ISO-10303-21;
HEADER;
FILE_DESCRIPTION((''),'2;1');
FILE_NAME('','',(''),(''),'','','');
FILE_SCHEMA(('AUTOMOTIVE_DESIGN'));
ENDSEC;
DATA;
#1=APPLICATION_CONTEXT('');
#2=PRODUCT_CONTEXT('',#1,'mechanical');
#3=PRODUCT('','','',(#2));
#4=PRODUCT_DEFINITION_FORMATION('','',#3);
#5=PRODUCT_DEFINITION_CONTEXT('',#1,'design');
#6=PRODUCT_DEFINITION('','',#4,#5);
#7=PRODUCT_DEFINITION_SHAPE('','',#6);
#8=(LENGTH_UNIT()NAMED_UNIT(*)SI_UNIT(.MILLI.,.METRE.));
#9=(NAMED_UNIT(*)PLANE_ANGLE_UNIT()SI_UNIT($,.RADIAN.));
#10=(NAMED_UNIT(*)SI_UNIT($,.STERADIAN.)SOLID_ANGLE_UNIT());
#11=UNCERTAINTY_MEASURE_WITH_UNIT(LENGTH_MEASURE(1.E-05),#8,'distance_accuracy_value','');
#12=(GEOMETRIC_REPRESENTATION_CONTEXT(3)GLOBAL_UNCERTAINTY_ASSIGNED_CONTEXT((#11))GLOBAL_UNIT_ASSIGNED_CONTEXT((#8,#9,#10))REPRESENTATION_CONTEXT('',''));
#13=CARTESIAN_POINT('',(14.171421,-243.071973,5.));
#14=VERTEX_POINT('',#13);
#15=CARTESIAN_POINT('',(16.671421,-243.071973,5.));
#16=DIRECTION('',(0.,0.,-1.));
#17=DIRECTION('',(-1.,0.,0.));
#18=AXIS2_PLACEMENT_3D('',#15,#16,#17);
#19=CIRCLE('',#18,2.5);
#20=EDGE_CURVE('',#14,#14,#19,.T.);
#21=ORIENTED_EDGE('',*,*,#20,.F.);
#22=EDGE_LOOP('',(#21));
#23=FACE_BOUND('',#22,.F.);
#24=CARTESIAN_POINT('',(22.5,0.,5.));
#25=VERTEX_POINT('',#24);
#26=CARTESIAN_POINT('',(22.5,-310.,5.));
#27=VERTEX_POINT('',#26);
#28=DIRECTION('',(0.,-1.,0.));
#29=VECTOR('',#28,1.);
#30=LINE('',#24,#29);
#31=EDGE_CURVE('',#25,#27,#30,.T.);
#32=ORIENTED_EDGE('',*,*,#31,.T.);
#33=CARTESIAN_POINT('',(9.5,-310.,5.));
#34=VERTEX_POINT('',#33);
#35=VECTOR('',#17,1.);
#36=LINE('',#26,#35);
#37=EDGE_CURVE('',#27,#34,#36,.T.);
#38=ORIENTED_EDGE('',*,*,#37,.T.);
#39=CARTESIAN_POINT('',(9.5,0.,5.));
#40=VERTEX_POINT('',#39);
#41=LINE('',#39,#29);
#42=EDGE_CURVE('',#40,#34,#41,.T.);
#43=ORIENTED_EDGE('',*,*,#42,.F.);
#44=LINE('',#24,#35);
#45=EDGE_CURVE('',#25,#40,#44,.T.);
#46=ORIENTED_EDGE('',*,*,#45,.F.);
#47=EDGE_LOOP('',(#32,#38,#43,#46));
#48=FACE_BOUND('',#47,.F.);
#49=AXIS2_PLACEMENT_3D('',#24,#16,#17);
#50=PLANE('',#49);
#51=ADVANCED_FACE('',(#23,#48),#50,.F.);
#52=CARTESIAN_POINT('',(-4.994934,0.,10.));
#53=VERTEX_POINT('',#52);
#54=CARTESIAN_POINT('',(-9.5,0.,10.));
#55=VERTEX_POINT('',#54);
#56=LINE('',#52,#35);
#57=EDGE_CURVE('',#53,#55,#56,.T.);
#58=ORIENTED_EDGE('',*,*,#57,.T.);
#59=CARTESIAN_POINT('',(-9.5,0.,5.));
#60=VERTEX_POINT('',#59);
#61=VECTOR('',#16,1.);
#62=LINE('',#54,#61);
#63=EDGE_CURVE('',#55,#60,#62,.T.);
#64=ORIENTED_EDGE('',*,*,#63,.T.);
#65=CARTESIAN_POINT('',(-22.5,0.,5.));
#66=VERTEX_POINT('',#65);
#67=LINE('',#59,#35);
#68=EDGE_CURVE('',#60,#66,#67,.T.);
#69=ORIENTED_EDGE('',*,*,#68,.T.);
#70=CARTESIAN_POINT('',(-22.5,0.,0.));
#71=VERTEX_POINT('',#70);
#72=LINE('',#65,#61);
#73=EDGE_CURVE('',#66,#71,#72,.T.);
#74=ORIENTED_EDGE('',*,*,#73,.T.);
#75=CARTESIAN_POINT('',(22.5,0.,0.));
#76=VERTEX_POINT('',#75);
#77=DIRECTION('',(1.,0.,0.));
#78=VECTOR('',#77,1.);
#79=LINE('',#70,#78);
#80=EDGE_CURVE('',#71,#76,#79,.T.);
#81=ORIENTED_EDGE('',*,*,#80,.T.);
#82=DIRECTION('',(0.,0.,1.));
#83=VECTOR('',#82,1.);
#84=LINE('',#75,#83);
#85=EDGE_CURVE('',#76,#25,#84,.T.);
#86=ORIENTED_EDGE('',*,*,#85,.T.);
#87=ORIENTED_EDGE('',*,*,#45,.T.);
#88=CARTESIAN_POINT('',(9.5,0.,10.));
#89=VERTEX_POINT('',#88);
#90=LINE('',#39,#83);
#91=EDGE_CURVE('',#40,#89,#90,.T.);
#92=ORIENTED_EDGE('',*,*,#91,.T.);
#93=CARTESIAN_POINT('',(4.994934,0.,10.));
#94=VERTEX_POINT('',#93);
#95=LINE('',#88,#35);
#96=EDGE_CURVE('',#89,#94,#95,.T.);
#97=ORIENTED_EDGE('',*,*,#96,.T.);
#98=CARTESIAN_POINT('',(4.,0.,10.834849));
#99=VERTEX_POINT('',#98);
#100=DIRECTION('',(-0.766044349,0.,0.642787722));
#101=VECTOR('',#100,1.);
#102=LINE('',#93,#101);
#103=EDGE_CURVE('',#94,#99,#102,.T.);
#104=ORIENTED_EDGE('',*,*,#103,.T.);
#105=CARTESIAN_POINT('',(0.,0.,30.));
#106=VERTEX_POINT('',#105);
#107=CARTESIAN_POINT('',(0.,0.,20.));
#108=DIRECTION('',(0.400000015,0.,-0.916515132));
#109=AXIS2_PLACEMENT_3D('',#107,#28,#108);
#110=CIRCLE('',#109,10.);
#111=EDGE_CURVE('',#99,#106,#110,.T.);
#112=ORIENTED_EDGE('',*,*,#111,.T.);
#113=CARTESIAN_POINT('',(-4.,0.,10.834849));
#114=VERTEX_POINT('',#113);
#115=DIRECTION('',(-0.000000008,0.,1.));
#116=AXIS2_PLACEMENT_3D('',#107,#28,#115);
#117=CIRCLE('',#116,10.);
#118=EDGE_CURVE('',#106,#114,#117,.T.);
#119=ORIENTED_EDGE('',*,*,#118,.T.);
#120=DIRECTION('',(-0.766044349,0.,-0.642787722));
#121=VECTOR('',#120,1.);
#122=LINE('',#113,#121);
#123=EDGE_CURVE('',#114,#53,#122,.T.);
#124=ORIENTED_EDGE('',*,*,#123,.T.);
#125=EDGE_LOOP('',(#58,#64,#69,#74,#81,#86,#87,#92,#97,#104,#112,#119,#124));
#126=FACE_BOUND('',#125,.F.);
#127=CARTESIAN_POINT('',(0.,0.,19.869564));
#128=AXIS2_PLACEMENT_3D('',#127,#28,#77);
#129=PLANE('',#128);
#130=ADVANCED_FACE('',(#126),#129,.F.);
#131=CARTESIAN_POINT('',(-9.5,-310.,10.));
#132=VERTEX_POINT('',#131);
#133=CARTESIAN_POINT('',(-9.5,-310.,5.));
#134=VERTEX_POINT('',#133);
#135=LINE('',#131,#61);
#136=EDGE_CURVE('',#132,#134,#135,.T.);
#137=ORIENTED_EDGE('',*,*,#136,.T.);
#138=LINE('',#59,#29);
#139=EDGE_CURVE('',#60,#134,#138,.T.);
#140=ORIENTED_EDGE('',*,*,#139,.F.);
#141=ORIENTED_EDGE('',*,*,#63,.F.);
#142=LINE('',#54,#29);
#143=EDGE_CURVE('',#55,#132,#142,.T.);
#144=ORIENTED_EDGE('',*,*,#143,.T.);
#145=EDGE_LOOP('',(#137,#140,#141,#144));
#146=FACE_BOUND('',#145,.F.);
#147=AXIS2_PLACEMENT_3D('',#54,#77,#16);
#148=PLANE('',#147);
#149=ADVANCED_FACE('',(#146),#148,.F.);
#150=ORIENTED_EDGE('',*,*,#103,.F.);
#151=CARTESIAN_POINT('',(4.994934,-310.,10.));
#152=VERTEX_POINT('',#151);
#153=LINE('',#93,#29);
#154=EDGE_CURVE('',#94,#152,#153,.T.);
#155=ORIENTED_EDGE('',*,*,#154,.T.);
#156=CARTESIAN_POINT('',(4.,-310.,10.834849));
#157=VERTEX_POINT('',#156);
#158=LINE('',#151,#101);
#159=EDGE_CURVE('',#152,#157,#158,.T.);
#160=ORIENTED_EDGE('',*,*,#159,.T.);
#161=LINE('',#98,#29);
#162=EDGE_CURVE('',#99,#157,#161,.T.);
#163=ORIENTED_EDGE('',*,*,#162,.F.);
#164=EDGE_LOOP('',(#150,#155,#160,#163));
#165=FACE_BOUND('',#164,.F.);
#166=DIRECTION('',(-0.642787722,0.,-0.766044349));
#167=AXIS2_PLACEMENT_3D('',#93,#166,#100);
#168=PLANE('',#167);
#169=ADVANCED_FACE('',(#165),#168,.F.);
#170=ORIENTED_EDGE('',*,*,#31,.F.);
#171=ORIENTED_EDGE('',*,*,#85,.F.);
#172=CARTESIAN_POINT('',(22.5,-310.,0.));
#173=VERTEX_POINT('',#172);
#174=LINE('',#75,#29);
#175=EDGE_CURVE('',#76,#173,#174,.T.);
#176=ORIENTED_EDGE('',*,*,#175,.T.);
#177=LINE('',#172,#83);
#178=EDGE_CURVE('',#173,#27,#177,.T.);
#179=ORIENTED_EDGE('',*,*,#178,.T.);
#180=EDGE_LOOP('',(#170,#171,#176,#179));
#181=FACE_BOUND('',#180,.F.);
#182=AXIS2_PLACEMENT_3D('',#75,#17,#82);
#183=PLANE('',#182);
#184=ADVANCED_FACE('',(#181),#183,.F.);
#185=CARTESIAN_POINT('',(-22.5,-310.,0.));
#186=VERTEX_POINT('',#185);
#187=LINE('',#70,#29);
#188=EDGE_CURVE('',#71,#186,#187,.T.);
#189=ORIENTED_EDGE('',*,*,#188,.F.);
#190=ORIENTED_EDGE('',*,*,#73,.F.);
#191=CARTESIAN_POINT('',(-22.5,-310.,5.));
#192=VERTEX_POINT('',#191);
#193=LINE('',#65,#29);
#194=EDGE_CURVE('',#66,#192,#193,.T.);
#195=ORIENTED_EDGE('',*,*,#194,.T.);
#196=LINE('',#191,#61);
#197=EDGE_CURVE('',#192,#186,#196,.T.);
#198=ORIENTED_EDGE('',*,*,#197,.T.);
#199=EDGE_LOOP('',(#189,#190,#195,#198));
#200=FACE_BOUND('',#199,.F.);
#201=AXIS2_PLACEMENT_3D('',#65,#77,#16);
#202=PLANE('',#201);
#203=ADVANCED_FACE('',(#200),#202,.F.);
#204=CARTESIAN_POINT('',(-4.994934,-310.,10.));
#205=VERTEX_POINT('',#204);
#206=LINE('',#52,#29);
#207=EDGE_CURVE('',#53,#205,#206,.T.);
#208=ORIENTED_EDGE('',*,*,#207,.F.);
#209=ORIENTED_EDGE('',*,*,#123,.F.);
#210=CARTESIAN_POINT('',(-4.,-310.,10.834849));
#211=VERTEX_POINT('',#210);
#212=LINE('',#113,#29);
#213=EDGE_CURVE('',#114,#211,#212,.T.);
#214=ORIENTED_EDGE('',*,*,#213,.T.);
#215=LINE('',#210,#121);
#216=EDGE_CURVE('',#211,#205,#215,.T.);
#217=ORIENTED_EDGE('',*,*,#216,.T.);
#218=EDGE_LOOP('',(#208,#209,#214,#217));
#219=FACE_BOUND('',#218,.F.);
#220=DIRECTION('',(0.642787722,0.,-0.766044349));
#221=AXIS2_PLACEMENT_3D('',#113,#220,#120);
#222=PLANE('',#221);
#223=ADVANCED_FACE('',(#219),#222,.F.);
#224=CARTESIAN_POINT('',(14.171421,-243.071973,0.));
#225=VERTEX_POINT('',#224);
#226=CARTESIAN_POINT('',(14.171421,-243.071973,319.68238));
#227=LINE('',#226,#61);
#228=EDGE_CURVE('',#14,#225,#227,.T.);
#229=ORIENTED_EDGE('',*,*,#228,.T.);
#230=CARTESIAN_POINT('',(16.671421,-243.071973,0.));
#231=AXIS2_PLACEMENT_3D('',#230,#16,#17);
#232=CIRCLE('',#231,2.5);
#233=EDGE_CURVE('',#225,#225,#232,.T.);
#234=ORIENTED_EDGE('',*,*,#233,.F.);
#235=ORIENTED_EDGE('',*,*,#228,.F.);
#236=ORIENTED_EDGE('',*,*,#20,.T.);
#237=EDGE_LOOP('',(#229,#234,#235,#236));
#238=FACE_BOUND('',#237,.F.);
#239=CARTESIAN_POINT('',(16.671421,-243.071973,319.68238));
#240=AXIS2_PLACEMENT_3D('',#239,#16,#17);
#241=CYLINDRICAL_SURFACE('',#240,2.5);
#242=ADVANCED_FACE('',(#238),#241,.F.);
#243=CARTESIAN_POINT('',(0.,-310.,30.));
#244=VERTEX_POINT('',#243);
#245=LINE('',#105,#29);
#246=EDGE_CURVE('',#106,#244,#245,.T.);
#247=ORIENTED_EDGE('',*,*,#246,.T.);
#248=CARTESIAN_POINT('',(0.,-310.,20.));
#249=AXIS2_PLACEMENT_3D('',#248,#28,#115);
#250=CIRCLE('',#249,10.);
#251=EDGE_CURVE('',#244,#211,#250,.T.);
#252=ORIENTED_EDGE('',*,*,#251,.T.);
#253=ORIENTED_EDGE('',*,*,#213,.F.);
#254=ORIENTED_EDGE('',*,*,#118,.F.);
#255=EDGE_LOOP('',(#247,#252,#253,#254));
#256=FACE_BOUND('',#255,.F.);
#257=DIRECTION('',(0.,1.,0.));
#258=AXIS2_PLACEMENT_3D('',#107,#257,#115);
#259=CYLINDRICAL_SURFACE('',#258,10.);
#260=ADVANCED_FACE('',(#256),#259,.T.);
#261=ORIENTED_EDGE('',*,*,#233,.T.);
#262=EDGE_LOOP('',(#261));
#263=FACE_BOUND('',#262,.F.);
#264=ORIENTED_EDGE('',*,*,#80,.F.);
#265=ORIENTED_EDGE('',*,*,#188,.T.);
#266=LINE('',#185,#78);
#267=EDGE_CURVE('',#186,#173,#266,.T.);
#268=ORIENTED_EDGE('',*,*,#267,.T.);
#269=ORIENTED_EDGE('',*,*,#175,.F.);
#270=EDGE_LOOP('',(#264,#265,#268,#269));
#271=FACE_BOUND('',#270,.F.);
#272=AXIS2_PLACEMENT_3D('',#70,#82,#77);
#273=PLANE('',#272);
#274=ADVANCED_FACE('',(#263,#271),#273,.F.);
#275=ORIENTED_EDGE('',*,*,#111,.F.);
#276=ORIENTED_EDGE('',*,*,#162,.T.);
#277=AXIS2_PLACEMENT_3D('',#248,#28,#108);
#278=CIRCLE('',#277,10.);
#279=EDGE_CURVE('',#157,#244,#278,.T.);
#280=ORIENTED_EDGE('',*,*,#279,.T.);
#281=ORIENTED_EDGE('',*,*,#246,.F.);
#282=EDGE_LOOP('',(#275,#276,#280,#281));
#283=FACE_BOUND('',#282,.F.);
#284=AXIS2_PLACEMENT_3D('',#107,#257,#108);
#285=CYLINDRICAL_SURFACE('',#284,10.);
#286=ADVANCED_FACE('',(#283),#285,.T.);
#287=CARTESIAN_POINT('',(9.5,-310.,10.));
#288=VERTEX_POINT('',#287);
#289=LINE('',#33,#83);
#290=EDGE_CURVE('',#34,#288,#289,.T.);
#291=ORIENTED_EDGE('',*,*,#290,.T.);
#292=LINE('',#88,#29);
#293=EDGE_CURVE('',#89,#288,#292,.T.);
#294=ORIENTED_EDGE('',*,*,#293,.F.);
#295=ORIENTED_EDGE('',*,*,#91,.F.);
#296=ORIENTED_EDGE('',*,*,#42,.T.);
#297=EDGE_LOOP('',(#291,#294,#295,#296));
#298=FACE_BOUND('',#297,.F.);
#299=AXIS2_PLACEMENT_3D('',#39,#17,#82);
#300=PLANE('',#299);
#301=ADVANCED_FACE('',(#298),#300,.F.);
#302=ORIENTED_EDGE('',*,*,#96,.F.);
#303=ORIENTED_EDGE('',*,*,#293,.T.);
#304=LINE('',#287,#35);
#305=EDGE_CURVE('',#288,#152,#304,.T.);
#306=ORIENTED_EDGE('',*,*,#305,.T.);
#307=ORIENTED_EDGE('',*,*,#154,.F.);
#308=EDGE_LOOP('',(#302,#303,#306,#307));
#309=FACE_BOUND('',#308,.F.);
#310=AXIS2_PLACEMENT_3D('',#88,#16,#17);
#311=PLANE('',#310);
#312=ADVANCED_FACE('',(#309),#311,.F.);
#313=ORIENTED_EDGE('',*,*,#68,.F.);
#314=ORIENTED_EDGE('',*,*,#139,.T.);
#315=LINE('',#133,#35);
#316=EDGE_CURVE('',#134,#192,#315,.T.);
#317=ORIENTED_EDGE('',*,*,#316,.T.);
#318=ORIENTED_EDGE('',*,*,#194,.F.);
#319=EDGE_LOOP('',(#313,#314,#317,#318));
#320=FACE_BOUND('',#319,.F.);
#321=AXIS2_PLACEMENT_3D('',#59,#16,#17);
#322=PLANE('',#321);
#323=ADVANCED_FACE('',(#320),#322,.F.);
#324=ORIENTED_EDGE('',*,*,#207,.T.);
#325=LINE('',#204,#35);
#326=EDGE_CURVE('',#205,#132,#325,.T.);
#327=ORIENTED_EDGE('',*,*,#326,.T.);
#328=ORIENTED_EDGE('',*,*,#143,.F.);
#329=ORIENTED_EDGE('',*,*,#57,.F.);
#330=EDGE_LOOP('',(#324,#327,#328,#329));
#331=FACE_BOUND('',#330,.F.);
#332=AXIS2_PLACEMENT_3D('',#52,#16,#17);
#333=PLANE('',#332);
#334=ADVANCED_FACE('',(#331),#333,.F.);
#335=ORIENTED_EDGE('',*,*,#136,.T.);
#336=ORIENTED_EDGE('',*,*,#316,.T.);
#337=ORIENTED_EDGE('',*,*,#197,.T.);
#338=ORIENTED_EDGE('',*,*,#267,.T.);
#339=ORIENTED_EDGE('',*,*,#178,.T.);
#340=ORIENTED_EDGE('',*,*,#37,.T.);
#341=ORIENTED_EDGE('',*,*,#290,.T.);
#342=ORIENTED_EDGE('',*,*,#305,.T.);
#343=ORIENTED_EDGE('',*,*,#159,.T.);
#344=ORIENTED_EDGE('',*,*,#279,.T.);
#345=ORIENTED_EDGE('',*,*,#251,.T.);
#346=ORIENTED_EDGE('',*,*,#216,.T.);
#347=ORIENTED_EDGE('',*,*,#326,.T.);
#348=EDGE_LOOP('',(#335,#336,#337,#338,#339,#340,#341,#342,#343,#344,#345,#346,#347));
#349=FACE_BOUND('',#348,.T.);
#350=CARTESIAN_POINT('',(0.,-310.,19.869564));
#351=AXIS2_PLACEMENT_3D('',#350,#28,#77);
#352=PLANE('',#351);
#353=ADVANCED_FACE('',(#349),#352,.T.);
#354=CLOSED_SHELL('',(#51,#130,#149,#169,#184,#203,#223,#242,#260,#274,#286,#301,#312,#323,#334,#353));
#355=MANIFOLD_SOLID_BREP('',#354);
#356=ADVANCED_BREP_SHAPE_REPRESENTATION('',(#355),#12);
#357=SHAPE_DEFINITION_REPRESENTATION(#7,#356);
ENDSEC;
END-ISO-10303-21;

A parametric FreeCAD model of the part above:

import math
import FreeCAD as App
import Part
import Sketcher

V = App.Vector
Q = App.Units.Quantity

doc = App.newDocument("Part")
body = doc.addObject("PartDesign::Body", "Body")

# Sketch on XZ plane
sketch1 = body.newObject("Sketcher::SketchObject", "Sketch")
sketch1.AttachmentSupport = (doc.getObject("XZ_Plane"), [""])
sketch1.MapMode = "FlatFace"
sketch1.addGeometry([
    Part.ArcOfCircle(Part.Circle(V(0, 20, 0), V(0, 0, 1), 10), math.radians(-66), math.radians(90)),  # 0
    Part.ArcOfCircle(Part.Circle(V(0, 20, 0), V(0, 0, 1), 10), math.radians(90), math.radians(246)),  # 1
    Part.LineSegment(V(-4, 10.8, 0), V(-5, 10, 0)),  # 2
    Part.LineSegment(V(-5, 10, 0), V(-9.5, 10, 0)),  # 3
    Part.LineSegment(V(-9.5, 10, 0), V(-9.5, 5, 0)),  # 4
    Part.LineSegment(V(-9.5, 5, 0), V(-22.5, 5, 0)),  # 5
    Part.LineSegment(V(-22.5, 5, 0), V(-22.5, 0, 0)),  # 6
    Part.LineSegment(V(-22.5, 0, 0), V(22.5, 0, 0)),  # 7
    Part.LineSegment(V(22.5, 0, 0), V(22.5, 5, 0)),  # 8
    Part.LineSegment(V(22.5, 5, 0), V(9.5, 5, 0)),  # 9
    Part.LineSegment(V(9.5, 5, 0), V(9.5, 10, 0)),  # 10
    Part.LineSegment(V(9.5, 10, 0), V(5, 10, 0)),  # 11
    Part.LineSegment(V(5, 10, 0), V(4, 10.8, 0)),  # 12
], False)
sketch1.addConstraint([
    Sketcher.Constraint("Tangent", 0, 2, 1, 1),
    Sketcher.Constraint("Coincident", 1, 2, 2, 1),
    Sketcher.Constraint("Coincident", 2, 2, 3, 1),
    Sketcher.Constraint("Coincident", 3, 2, 4, 1),
    Sketcher.Constraint("Coincident", 4, 2, 5, 1),
    Sketcher.Constraint("Coincident", 5, 2, 6, 1),
    Sketcher.Constraint("Coincident", 6, 2, 7, 1),
    Sketcher.Constraint("Coincident", 7, 2, 8, 1),
    Sketcher.Constraint("Coincident", 8, 2, 9, 1),
    Sketcher.Constraint("Coincident", 9, 2, 10, 1),
    Sketcher.Constraint("Coincident", 10, 2, 11, 1),
    Sketcher.Constraint("Coincident", 11, 2, 12, 1),
    Sketcher.Constraint("Coincident", 12, 2, 0, 1),
    Sketcher.Constraint("Horizontal", 3),
    Sketcher.Constraint("Vertical", 4),
    Sketcher.Constraint("Horizontal", 5),
    Sketcher.Constraint("Vertical", 6),
    Sketcher.Constraint("Horizontal", 7),
    Sketcher.Constraint("Vertical", 8),
    Sketcher.Constraint("Horizontal", 9),
    Sketcher.Constraint("Vertical", 10),
    Sketcher.Constraint("Horizontal", 11),
    Sketcher.Constraint("Equal", 0, 1),
    Sketcher.Constraint("Symmetric", 6, 2, 7, 2, -1, 1),
    Sketcher.Constraint("Symmetric", 4, 2, 9, 2, -2),
    Sketcher.Constraint("Symmetric", 2, 2, 11, 2, -2),
    Sketcher.Constraint("Symmetric", 1, 2, 12, 2, -2),
    Sketcher.Constraint("PointOnObject", 0, 2, -2),
    Sketcher.Constraint("Equal", 4, 6),
    Sketcher.Constraint("Radius", 0, 10.0),
    Sketcher.Constraint("DistanceX", 5, 2, 5, 1, 13.0),
    Sketcher.Constraint("DistanceX", 7, 1, 7, 2, 45.0),
    Sketcher.Constraint("DistanceY", 4, 2, 4, 1, 5.0),
    Sketcher.Constraint("Angle", 2, Q("-139.999992 deg")),
    Sketcher.Constraint("DistanceY", -1, 1, 0, 3, 20.0),
    Sketcher.Constraint("DistanceX", 1, 2, -1, 1, 4.0),
])
pad1 = body.newObject("PartDesign::Pad", "Pad")
pad1.Profile = sketch1
pad1.Length = 310

# Sketch on XY plane
sketch2 = body.newObject("Sketcher::SketchObject", "Sketch001")
sketch2.AttachmentSupport = (doc.getObject("XY_Plane"), [""])
sketch2.MapMode = "FlatFace"
sketch2.AttachmentOffset = App.Placement(V(0, 0, 5), App.Rotation())
sketch2.addGeometry(Part.Circle(V(16.7, -243.1, 0), V(0, 0, 1), 2.5), False)
sketch2.addConstraint([
    Sketcher.Constraint("Diameter", 0, 5.0),
    Sketcher.Constraint("DistanceX", -1, 1, 0, 3, 16.671421),
    Sketcher.Constraint("DistanceY", 0, 3, -1, 1, 243.071973),
])
doc.recompute()
hole = body.newObject("PartDesign::Hole", "Hole")
hole.Profile = sketch2
hole.ThreadType = "None"
hole.Diameter = 5
hole.DepthType = "ThroughAll"

doc.recompute()
